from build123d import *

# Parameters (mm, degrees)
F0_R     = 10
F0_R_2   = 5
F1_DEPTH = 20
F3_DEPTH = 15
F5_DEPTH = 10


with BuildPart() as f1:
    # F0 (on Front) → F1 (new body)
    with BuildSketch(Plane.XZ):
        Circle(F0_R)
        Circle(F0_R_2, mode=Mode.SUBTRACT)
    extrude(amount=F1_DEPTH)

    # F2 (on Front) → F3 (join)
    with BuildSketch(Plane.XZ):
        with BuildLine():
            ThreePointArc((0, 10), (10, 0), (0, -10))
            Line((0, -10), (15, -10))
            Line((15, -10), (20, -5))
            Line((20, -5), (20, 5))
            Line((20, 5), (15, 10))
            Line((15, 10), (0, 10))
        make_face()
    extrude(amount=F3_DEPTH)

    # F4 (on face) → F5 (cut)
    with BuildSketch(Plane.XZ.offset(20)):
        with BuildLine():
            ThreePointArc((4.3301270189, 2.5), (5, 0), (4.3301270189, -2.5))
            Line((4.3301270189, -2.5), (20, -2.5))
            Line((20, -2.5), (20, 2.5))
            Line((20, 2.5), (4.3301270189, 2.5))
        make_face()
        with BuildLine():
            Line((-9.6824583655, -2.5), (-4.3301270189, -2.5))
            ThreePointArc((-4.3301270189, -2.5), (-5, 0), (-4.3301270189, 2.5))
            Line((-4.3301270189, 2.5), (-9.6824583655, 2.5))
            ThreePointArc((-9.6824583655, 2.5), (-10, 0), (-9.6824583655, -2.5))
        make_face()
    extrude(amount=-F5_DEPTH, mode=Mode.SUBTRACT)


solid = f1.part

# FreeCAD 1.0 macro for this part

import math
import FreeCAD as App
import Part
import Sketcher
from FreeCAD import Vector
Q = App.Units.Quantity

doc = App.newDocument("Part")
params = doc.addObject("Spreadsheet::Sheet", "Params")
for row, (alias, value) in enumerate([
    ("sketch1_diameter", "20 mm"),
    ("sketch1_diameter2", "10 mm"),
    ("pad1_length", "20 mm"),
    ("sketch2_radius", "10 mm"),
    ("sketch2_width", "15 mm"),
    ("sketch2_height", "10 mm"),
    ("pad2_length", "15 mm"),
    ("sketch3_radius", "5 mm"),
    ("sketch3_radius2", "10 mm"),
    ("sketch3_height", "5 mm"),
    ("pocket1_length", "10 mm"),
], start=1):
    params.set(f"A{row}", alias)
    params.set(f"B{row}", "=" + value)
    params.setAlias(f"B{row}", alias)

body = doc.addObject("PartDesign::Body", "Body")

# Sketch on XZ plane
sketch1 = body.newObject("Sketcher::SketchObject", "Sketch")
sketch1.AttachmentSupport = (doc.getObject("XZ_Plane"), [""])
sketch1.MapMode = "FlatFace"
sketch1.addGeometry(Part.Circle(Vector(0, 0, 0), Vector(0, 0, 1), 10), False)
sketch1.addGeometry(Part.Circle(Vector(0, 0, 0), Vector(0, 0, 1), 5), False)
sketch1.addConstraint(Sketcher.Constraint("Coincident", 0, 3, -1, 1))
sketch1.addConstraint(Sketcher.Constraint("Coincident", 1, 3, -1, 1))
sketch1.addConstraint(Sketcher.Constraint("Diameter", 0, Q("20 mm")))
sketch1.addConstraint(Sketcher.Constraint("Diameter", 1, Q("10 mm")))
sketch1.setExpression("Constraints[2]", "Params.sketch1_diameter")
sketch1.setExpression("Constraints[3]", "Params.sketch1_diameter2")
pad1 = body.newObject("PartDesign::Pad", "Pad")
pad1.Profile = sketch1
pad1.setExpression("Length", "Params.pad1_length")

# Sketch on XZ plane
sketch2 = body.newObject("Sketcher::SketchObject", "Sketch001")
sketch2.AttachmentSupport = (doc.getObject("XZ_Plane"), [""])
sketch2.MapMode = "FlatFace"
sketch2.addGeometry(Part.ArcOfCircle(Part.Circle(Vector(0, 0, 0), Vector(0, 0, 1), 10), math.radians(-90), math.radians(90)), False)
sketch2.addGeometry(Part.LineSegment(Vector(0, -10, 0), Vector(15, -10, 0)), False)
sketch2.addGeometry(Part.LineSegment(Vector(15, -10, 0), Vector(20, -5, 0)), False)
sketch2.addGeometry(Part.LineSegment(Vector(20, -5, 0), Vector(20, 5, 0)), False)
sketch2.addGeometry(Part.LineSegment(Vector(20, 5, 0), Vector(15, 10, 0)), False)
sketch2.addGeometry(Part.LineSegment(Vector(15, 10, 0), Vector(0, 10, 0)), False)
sketch2.addConstraint(Sketcher.Constraint("Tangent", 0, 1, 1, 1))
sketch2.addConstraint(Sketcher.Constraint("Coincident", 1, 2, 2, 1))
sketch2.addConstraint(Sketcher.Constraint("Coincident", 2, 2, 3, 1))
sketch2.addConstraint(Sketcher.Constraint("Coincident", 3, 2, 4, 1))
sketch2.addConstraint(Sketcher.Constraint("Coincident", 4, 2, 5, 1))
sketch2.addConstraint(Sketcher.Constraint("Tangent", 5, 2, 0, 2))
sketch2.addConstraint(Sketcher.Constraint("Horizontal", 1))
sketch2.addConstraint(Sketcher.Constraint("Vertical", 3))
sketch2.addConstraint(Sketcher.Constraint("Horizontal", 5))
sketch2.addConstraint(Sketcher.Constraint("Coincident", 0, 3, -1, 1))
sketch2.addConstraint(Sketcher.Constraint("Perpendicular", 2, 4))
sketch2.addConstraint(Sketcher.Constraint("Vertical", 1, 2, 4, 2))
sketch2.addConstraint(Sketcher.Constraint("Equal", 2, 4))
sketch2.addConstraint(Sketcher.Constraint("Radius", 0, Q("10 mm")))
sketch2.addConstraint(Sketcher.Constraint("DistanceX", 1, 1, 1, 2, Q("15 mm")))
sketch2.addConstraint(Sketcher.Constraint("DistanceY", 3, 1, 3, 2, Q("10 mm")))
sketch2.setExpression("Constraints[13]", "Params.sketch2_radius")
sketch2.setExpression("Constraints[14]", "Params.sketch2_width")
sketch2.setExpression("Constraints[15]", "Params.sketch2_height")
pad2 = body.newObject("PartDesign::Pad", "Pad001")
pad2.Profile = sketch2
pad2.setExpression("Length", "Params.pad2_length")

# Sketch on XZ plane
sketch3 = body.newObject("Sketcher::SketchObject", "Sketch002")
sketch3.AttachmentSupport = (doc.getObject("XZ_Plane"), [""])
sketch3.MapMode = "FlatFace"
sketch3.AttachmentOffset = App.Placement(Vector(0, 0, 20), App.Rotation())
sketch3.addGeometry(Part.ArcOfCircle(Part.Circle(Vector(0, 0, 0), Vector(0, 0, 1), 5), math.radians(-30), math.radians(30)), False)
sketch3.addGeometry(Part.LineSegment(Vector(4, -2, 0), Vector(20, -2, 0)), False)
sketch3.addGeometry(Part.LineSegment(Vector(20, -2, 0), Vector(20, 2, 0)), False)
sketch3.addGeometry(Part.LineSegment(Vector(20, 2, 0), Vector(4, 2, 0)), False)
sketch3.addGeometry(Part.LineSegment(Vector(-10, -2, 0), Vector(-4, -2, 0)), False)
sketch3.addGeometry(Part.ArcOfCircle(Part.Circle(Vector(0, 0, 0), Vector(0, 0, 1), 5), math.radians(150), math.radians(210)), False)
sketch3.addGeometry(Part.LineSegment(Vector(-4, 2, 0), Vector(-10, 2, 0)), False)
sketch3.addGeometry(Part.ArcOfCircle(Part.Circle(Vector(0, 0, 0), Vector(0, 0, 1), 10), math.radians(166), math.radians(194)), False)
sketch3.addConstraint(Sketcher.Constraint("Coincident", 0, 1, 1, 1))
sketch3.addConstraint(Sketcher.Constraint("Coincident", 1, 2, 2, 1))
sketch3.addConstraint(Sketcher.Constraint("Coincident", 2, 2, 3, 1))
sketch3.addConstraint(Sketcher.Constraint("Coincident", 3, 2, 0, 2))
sketch3.addConstraint(Sketcher.Constraint("Coincident", 4, 2, 5, 2))
sketch3.addConstraint(Sketcher.Constraint("Coincident", 5, 1, 6, 1))
sketch3.addConstraint(Sketcher.Constraint("Coincident", 6, 2, 7, 1))
sketch3.addConstraint(Sketcher.Constraint("Coincident", 7, 2, 4, 1))
sketch3.addConstraint(Sketcher.Constraint("Horizontal", 1))
sketch3.addConstraint(Sketcher.Constraint("Vertical", 2))
sketch3.addConstraint(Sketcher.Constraint("Horizontal", 3))
sketch3.addConstraint(Sketcher.Constraint("Horizontal", 4))
sketch3.addConstraint(Sketcher.Constraint("Horizontal", 6))
sketch3.addConstraint(Sketcher.Constraint("Coincident", 0, 3, -1, 1))
sketch3.addConstraint(Sketcher.Constraint("Coincident", 5, 3, -1, 1))
sketch3.addConstraint(Sketcher.Constraint("Coincident", 7, 3, -1, 1))
sketch3.addConstraint(Sketcher.Constraint("Equal", 0, 5))
sketch3.addConstraint(Sketcher.Constraint("Horizontal", 1, 2, 4, 2))
sketch3.addConstraint(Sketcher.Constraint("Horizontal", 3, 2, 5, 1))
sketch3.addConstraint(Sketcher.Constraint("Vertical", 0, 1, 3, 2))
sketch3.addConstraint(Sketcher.Constraint("Radius", 0, Q("5 mm")))
sketch3.addConstraint(Sketcher.Constraint("Radius", 7, Q("10 mm")))
sketch3.addConstraint(Sketcher.Constraint("DistanceY", 2, 1, 2, 2, Q("5 mm")))
sketch3.addConstraint(Sketcher.Constraint("DistanceX", -1, 1, 1, 2, Q("20 mm")))
sketch3.setExpression("Constraints[20]", "Params.sketch3_radius")
sketch3.setExpression("Constraints[21]", "Params.sketch3_radius2")
sketch3.setExpression("Constraints[22]", "Params.sketch3_height")
pocket1 = body.newObject("PartDesign::Pocket", "Pocket")
pocket1.Profile = sketch3
pocket1.setExpression("Length", "Params.pocket1_length")

doc.recompute()
